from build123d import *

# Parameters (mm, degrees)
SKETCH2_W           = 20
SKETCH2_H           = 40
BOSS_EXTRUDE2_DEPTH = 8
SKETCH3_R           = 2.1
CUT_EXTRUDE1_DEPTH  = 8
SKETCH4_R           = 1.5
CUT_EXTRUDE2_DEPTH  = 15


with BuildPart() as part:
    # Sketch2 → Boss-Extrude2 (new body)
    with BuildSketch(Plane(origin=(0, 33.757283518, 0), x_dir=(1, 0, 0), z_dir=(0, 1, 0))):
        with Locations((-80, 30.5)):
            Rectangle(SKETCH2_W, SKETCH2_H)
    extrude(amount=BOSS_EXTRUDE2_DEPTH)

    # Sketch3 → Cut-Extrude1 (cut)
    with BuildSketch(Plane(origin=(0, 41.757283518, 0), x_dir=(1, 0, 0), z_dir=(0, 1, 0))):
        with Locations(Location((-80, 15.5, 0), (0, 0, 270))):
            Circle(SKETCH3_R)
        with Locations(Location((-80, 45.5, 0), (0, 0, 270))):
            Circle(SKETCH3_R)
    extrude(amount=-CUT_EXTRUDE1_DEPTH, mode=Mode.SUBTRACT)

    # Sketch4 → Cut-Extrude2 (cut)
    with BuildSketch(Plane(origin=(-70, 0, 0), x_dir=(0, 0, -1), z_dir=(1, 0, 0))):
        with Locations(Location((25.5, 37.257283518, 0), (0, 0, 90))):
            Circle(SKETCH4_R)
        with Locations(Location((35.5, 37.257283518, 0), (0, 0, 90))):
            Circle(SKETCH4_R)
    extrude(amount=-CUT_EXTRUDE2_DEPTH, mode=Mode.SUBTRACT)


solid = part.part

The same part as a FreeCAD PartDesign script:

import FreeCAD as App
import Part
import Sketcher
from FreeCAD import Vector
Q = App.Units.Quantity


def add_polygon(sketch, points):
    """Adds a closed chain of lines whose ends are joined by coincident constraints."""
    first, n = sketch.GeometryCount, len(points)
    for a, b in zip(points, points[1:] + points[:1]):
        sketch.addGeometry(Part.LineSegment(App.Vector(*a, 0), App.Vector(*b, 0)), False)
    for i in range(n):
        sketch.addConstraint(Sketcher.Constraint("Coincident", first + i, 2, first + (i + 1) % n, 1))

doc = App.newDocument("Part")
body = doc.addObject("PartDesign::Body", "Body")

sketch1 = body.newObject("Sketcher::SketchObject", "Sketch")
sketch1.AttachmentSupport = (doc.getObject("XZ_Plane"), [""])
sketch1.MapMode = "FlatFace"
sketch1.AttachmentOffset = App.Placement(Vector(0, 0, -33.757284), App.Rotation())
add_polygon(sketch1, [(-90, -50), (-90, -10), (-70, -10), (-70, -50)])
sketch1.addConstraint(Sketcher.Constraint("Vertical", 0))
sketch1.addConstraint(Sketcher.Constraint("Horizontal", 1))
sketch1.addConstraint(Sketcher.Constraint("Vertical", 2))
sketch1.addConstraint(Sketcher.Constraint("Horizontal", 3))
sketch1.addConstraint(Sketcher.Constraint("DistanceX", 1, 1, 1, 2, Q("20 mm")))
sketch1.addConstraint(Sketcher.Constraint("DistanceY", 0, 1, 0, 2, Q("40 mm")))
sketch1.addConstraint(Sketcher.Constraint("DistanceX", 0, 2, -1, 1, Q("90 mm")))
sketch1.addConstraint(Sketcher.Constraint("DistanceY", 0, 2, -1, 1, Q("10.5 mm")))
pad1 = body.newObject("PartDesign::Pad", "Pad")
pad1.Profile = sketch1
pad1.Length = 8
pad1.Reversed = True

sketch2 = body.newObject("Sketcher::SketchObject", "Sketch001")
sketch2.AttachmentSupport = (doc.getObject("XZ_Plane"), [""])
sketch2.MapMode = "FlatFace"
sketch2.AttachmentOffset = App.Placement(Vector(0, 0, -41.757284), App.Rotation())
sketch2.addGeometry(Part.Circle(Vector(-80, -15.5, 0), Vector(0, 0, 1), 2.1), False)
sketch2.addGeometry(Part.Circle(Vector(-80, -45.5, 0), Vector(0, 0, 1), 2.1), False)
sketch2.addConstraint(Sketcher.Constraint("Equal", 0, 1))
sketch2.addConstraint(Sketcher.Constraint("Vertical", 0, 3, 1, 3))
sketch2.addConstraint(Sketcher.Constraint("Diameter", 0, Q("4.2 mm")))
sketch2.addConstraint(Sketcher.Constraint("DistanceX", 0, 3, -1, 1, Q("80 mm")))
sketch2.addConstraint(Sketcher.Constraint("DistanceY", 1, 3, 0, 3, Q("30 mm")))
sketch2.addConstraint(Sketcher.Constraint("DistanceY", 0, 3, -1, 1, Q("15.5 mm")))
pocket1 = body.newObject("PartDesign::Pocket", "Pocket")
pocket1.Profile = sketch2
pocket1.Length = 8
pocket1.Reversed = True

sketch3 = body.newObject("Sketcher::SketchObject", "Sketch002")
sketch3.AttachmentSupport = (doc.getObject("YZ_Plane"), [""])
sketch3.MapMode = "FlatFace"
sketch3.AttachmentOffset = App.Placement(Vector(0, 0, -70), App.Rotation())
sketch3.addGeometry(Part.Circle(Vector(37.3, -25.5, 0), Vector(0, 0, 1), 1.5), False)
sketch3.addGeometry(Part.Circle(Vector(37.3, -35.5, 0), Vector(0, 0, 1), 1.5), False)
sketch3.addConstraint(Sketcher.Constraint("Equal", 0, 1))
sketch3.addConstraint(Sketcher.Constraint("Vertical", 0, 3, 1, 3))
sketch3.addConstraint(Sketcher.Constraint("Diameter", 0, Q("3 mm")))
sketch3.addConstraint(Sketcher.Constraint("DistanceY", 1, 3, 0, 3, Q("10 mm")))
sketch3.addConstraint(Sketcher.Constraint("DistanceY", 0, 3, -1, 1, Q("25.5 mm")))
sketch3.addConstraint(Sketcher.Constraint("DistanceX", -1, 1, 0, 3, Q("37.257284 mm")))
pocket2 = body.newObject("PartDesign::Pocket", "Pocket001")
pocket2.Profile = sketch3
pocket2.Length = 15

doc.recompute()
